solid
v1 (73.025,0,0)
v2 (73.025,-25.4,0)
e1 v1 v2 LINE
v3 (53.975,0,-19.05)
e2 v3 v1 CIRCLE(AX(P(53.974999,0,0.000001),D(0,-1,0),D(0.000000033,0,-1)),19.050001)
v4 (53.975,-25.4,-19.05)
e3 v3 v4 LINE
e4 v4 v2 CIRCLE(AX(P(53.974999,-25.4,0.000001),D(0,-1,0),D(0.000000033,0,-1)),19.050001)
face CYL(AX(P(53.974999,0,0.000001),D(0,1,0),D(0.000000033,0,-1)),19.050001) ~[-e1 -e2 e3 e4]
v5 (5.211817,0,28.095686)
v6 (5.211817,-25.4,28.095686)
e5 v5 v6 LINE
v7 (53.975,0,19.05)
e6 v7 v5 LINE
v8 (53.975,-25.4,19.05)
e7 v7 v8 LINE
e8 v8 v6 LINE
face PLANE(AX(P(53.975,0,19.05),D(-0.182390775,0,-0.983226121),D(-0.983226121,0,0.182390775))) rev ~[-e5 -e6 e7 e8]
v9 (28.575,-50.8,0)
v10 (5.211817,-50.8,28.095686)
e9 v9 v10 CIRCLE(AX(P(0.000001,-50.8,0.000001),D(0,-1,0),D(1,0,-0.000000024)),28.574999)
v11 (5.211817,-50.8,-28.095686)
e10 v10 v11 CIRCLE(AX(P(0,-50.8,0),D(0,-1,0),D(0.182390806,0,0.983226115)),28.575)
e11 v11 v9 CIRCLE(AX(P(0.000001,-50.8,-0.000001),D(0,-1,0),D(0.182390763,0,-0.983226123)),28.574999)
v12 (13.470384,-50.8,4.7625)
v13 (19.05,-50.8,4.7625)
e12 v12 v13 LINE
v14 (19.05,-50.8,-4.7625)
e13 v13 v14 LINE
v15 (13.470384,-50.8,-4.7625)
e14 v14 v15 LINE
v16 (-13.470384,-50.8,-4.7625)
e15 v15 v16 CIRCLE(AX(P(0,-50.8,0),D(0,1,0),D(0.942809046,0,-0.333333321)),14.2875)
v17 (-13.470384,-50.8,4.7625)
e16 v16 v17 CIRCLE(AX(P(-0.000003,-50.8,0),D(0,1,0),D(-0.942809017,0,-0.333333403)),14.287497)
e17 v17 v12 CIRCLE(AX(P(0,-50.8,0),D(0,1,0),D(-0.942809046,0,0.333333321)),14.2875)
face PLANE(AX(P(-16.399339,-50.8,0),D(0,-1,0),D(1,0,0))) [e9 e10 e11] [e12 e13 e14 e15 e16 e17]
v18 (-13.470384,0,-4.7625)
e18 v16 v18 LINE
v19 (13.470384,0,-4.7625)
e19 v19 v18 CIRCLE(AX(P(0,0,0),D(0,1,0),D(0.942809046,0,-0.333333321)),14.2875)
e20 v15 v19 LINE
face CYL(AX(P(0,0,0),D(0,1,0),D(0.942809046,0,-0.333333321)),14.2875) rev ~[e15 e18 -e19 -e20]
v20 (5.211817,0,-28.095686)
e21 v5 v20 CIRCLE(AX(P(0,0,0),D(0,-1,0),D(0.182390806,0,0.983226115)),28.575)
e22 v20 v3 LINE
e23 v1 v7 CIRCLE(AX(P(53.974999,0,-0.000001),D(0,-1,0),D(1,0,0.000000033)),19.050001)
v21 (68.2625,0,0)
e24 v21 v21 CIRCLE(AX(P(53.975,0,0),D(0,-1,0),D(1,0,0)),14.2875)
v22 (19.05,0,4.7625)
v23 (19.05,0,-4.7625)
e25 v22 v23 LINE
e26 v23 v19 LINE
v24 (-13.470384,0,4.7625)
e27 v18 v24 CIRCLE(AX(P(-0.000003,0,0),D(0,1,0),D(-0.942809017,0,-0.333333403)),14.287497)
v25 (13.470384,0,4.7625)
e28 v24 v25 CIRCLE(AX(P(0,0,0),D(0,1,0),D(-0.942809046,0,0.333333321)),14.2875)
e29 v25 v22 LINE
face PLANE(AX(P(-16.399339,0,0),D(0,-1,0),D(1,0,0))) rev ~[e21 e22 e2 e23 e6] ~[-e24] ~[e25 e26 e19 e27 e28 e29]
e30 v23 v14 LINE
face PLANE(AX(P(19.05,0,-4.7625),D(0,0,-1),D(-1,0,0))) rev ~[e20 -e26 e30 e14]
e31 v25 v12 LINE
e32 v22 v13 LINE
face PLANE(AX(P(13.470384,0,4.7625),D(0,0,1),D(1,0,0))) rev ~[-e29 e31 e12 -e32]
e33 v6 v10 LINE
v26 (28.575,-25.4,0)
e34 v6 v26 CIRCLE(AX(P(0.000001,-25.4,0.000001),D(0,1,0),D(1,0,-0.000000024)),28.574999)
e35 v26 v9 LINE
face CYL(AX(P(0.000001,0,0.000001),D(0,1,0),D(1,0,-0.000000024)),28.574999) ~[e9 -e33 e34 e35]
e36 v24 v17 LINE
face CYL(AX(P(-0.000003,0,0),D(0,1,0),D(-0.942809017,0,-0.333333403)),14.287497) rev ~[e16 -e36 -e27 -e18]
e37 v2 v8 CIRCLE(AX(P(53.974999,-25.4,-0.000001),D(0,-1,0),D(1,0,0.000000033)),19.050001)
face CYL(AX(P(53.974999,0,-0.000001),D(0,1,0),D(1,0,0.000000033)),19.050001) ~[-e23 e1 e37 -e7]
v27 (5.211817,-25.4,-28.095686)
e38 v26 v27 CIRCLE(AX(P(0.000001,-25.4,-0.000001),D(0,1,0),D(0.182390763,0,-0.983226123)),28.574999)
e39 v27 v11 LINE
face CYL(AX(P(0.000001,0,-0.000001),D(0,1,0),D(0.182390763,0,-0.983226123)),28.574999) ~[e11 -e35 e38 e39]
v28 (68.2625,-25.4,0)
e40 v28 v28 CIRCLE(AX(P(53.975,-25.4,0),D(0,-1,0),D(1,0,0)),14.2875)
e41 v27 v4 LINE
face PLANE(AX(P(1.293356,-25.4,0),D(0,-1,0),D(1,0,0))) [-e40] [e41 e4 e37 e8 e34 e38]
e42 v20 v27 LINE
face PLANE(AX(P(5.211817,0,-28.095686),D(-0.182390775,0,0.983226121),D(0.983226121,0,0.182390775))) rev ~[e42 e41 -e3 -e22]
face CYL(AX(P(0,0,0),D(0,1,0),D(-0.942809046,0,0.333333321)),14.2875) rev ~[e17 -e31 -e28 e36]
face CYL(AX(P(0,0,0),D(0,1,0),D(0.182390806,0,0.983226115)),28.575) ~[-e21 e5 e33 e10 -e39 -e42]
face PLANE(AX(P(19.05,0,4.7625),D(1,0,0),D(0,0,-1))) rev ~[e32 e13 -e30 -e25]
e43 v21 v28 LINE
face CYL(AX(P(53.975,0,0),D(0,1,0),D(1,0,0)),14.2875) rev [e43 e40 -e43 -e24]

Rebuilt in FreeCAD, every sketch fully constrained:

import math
import FreeCAD as App
import Part
import Sketcher
from FreeCAD import Vector
Q = App.Units.Quantity

doc = App.newDocument("Part")
body = doc.addObject("PartDesign::Body", "Body")

# Sketch on XZ plane
sketch1 = body.newObject("Sketcher::SketchObject", "Sketch")
sketch1.AttachmentSupport = (doc.getObject("XZ_Plane"), [""])
sketch1.MapMode = "FlatFace"
sketch1.addGeometry(Part.ArcOfCircle(Part.Circle(Vector(0, 0, 0), Vector(0, 0, 1), 29), math.radians(79), math.radians(281)), False)
sketch1.addGeometry(Part.LineSegment(Vector(5, -28, 0), Vector(54, -19, 0)), False)
sketch1.addGeometry(Part.ArcOfCircle(Part.Circle(Vector(54, 0, 0), Vector(0, 0, 1), 19), math.radians(-90), math.radians(0)), False)
sketch1.addGeometry(Part.ArcOfCircle(Part.Circle(Vector(54, 0, 0), Vector(0, 0, 1), 19), math.radians(0), math.radians(90)), False)
sketch1.addGeometry(Part.LineSegment(Vector(54, 19, 0), Vector(5, 28, 0)), False)
sketch1.addGeometry(Part.LineSegment(Vector(-19, 5, 0), Vector(-13, 5, 0)), False)
sketch1.addGeometry(Part.ArcOfCircle(Part.Circle(Vector(0, 0, 0), Vector(0, 0, 1), 14), math.radians(19), math.radians(161)), False)
sketch1.addGeometry(Part.LineSegment(Vector(13, 5, 0), Vector(19, 5, 0)), False)
sketch1.addGeometry(Part.LineSegment(Vector(19, 5, 0), Vector(19, -5, 0)), False)
sketch1.addGeometry(Part.LineSegment(Vector(19, -5, 0), Vector(13, -5, 0)), False)
sketch1.addGeometry(Part.ArcOfCircle(Part.Circle(Vector(0, 0, 0), Vector(0, 0, 1), 14), math.radians(-161), math.radians(-19)), False)
sketch1.addGeometry(Part.LineSegment(Vector(-13, -5, 0), Vector(-19, -5, 0)), False)
sketch1.addGeometry(Part.LineSegment(Vector(-19, -5, 0), Vector(-19, 5, 0)), False)
sketch1.addGeometry(Part.Circle(Vector(54, 0, 0), Vector(0, 0, 1), 14), False)
sketch1.addConstraint(Sketcher.Constraint("Tangent", 0, 2, 1, 1))
sketch1.addConstraint(Sketcher.Constraint("Coincident", 1, 2, 2, 1))
sketch1.addConstraint(Sketcher.Constraint("Tangent", 2, 2, 3, 1))
sketch1.addConstraint(Sketcher.Constraint("Coincident", 3, 2, 4, 1))
sketch1.addConstraint(Sketcher.Constraint("Tangent", 4, 2, 0, 1))
sketch1.addConstraint(Sketcher.Constraint("Coincident", 5, 2, 6, 2))
sketch1.addConstraint(Sketcher.Constraint("Coincident", 6, 1, 7, 1))
sketch1.addConstraint(Sketcher.Constraint("Coincident", 7, 2, 8, 1))
sketch1.addConstraint(Sketcher.Constraint("Coincident", 8, 2, 9, 1))
sketch1.addConstraint(Sketcher.Constraint("Coincident", 9, 2, 10, 2))
sketch1.addConstraint(Sketcher.Constraint("Coincident", 10, 1, 11, 1))
sketch1.addConstraint(Sketcher.Constraint("Coincident", 11, 2, 12, 1))
sketch1.addConstraint(Sketcher.Constraint("Coincident", 12, 2, 5, 1))
sketch1.addConstraint(Sketcher.Constraint("Horizontal", 5))
sketch1.addConstraint(Sketcher.Constraint("Horizontal", 7))
sketch1.addConstraint(Sketcher.Constraint("Vertical", 8))
sketch1.addConstraint(Sketcher.Constraint("Horizontal", 9))
sketch1.addConstraint(Sketcher.Constraint("Horizontal", 11))
sketch1.addConstraint(Sketcher.Constraint("Vertical", 12))
sketch1.addConstraint(Sketcher.Constraint("Coincident", 0, 3, -1, 1))
sketch1.addConstraint(Sketcher.Constraint("Coincident", 6, 3, -1, 1))
sketch1.addConstraint(Sketcher.Constraint("Coincident", 10, 3, -1, 1))
sketch1.addConstraint(Sketcher.Constraint("Coincident", 13, 3, 2, 3))
sketch1.addConstraint(Sketcher.Constraint("Equal", 2, 3))
sketch1.addConstraint(Sketcher.Constraint("Equal", 6, 10))
sketch1.addConstraint(Sketcher.Constraint("Equal", 10, 13))
sketch1.addConstraint(Sketcher.Constraint("Symmetric", 7, 2, 11, 2, -1, 1))
sketch1.addConstraint(Sketcher.Constraint("Symmetric", 1, 2, 3, 2, -1))
sketch1.addConstraint(Sketcher.Constraint("PointOnObject", 2, 2, -1))
sketch1.addConstraint(Sketcher.Constraint("Horizontal", 5, 2, 6, 1))
sketch1.addConstraint(Sketcher.Constraint("Horizontal", 9, 2, 10, 1))
sketch1.addConstraint(Sketcher.Constraint("Vertical", 13, 3, 1, 2))
sketch1.addConstraint(Sketcher.Constraint("Radius", 2, Q("0.75 in")))
sketch1.addConstraint(Sketcher.Constraint("Diameter", 13, Q("1.125 in")))
sketch1.addConstraint(Sketcher.Constraint("Radius", 0, Q("1.125 in")))
sketch1.addConstraint(Sketcher.Constraint("DistanceY", 8, 2, 8, 1, Q("0.375 in")))
sketch1.addConstraint(Sketcher.Constraint("DistanceX", -1, 1, 7, 2, Q("0.75 in")))
sketch1.addConstraint(Sketcher.Constraint("DistanceX", -1, 1, 2, 3, Q("2.125 in")))
pad1 = body.newObject("PartDesign::Pad", "Pad")
pad1.Profile = sketch1
pad1.Length = Q("1 in")

# Sketch on XZ plane
sketch2 = body.newObject("Sketcher::SketchObject", "Sketch001")
sketch2.AttachmentSupport = (doc.getObject("XZ_Plane"), [""])
sketch2.MapMode = "FlatFace"
sketch2.addGeometry(Part.ArcOfCircle(Part.Circle(Vector(0, 0, 0), Vector(0, 0, 1), 29), math.radians(-79), math.radians(0)), False)
sketch2.addGeometry(Part.ArcOfCircle(Part.Circle(Vector(0, 0, 0), Vector(0, 0, 1), 29), math.radians(0), math.radians(79)), False)
sketch2.addGeometry(Part.ArcOfCircle(Part.Circle(Vector(0, 0, 0), Vector(0, 0, 1), 29), math.radians(79), math.radians(281)), False)
sketch2.addGeometry(Part.LineSegment(Vector(-19, 5, 0), Vector(-13, 5, 0)), False)
sketch2.addGeometry(Part.ArcOfCircle(Part.Circle(Vector(0, 0, 0), Vector(0, 0, 1), 14), math.radians(19), math.radians(161)), False)
sketch2.addGeometry(Part.LineSegment(Vector(13, 5, 0), Vector(19, 5, 0)), False)
sketch2.addGeometry(Part.LineSegment(Vector(19, 5, 0), Vector(19, -5, 0)), False)
sketch2.addGeometry(Part.LineSegment(Vector(19, -5, 0), Vector(13, -5, 0)), False)
sketch2.addGeometry(Part.ArcOfCircle(Part.Circle(Vector(0, 0, 0), Vector(0, 0, 1), 14), math.radians(-161), math.radians(-19)), False)
sketch2.addGeometry(Part.LineSegment(Vector(-13, -5, 0), Vector(-19, -5, 0)), False)
sketch2.addGeometry(Part.LineSegment(Vector(-19, -5, 0), Vector(-19, 5, 0)), False)
sketch2.addConstraint(Sketcher.Constraint("Tangent", 0, 2, 1, 1))
sketch2.addConstraint(Sketcher.Constraint("Tangent", 1, 2, 2, 1))
sketch2.addConstraint(Sketcher.Constraint("Tangent", 2, 2, 0, 1))
sketch2.addConstraint(Sketcher.Constraint("Coincident", 3, 2, 4, 2))
sketch2.addConstraint(Sketcher.Constraint("Coincident", 4, 1, 5, 1))
sketch2.addConstraint(Sketcher.Constraint("Coincident", 5, 2, 6, 1))
sketch2.addConstraint(Sketcher.Constraint("Coincident", 6, 2, 7, 1))
sketch2.addConstraint(Sketcher.Constraint("Coincident", 7, 2, 8, 2))
sketch2.addConstraint(Sketcher.Constraint("Coincident", 8, 1, 9, 1))
sketch2.addConstraint(Sketcher.Constraint("Coincident", 9, 2, 10, 1))
sketch2.addConstraint(Sketcher.Constraint("Coincident", 10, 2, 3, 1))
sketch2.addConstraint(Sketcher.Constraint("Horizontal", 3))
sketch2.addConstraint(Sketcher.Constraint("Horizontal", 5))
sketch2.addConstraint(Sketcher.Constraint("Vertical", 6))
sketch2.addConstraint(Sketcher.Constraint("Horizontal", 7))
sketch2.addConstraint(Sketcher.Constraint("Horizontal", 9))
sketch2.addConstraint(Sketcher.Constraint("Vertical", 10))
sketch2.addConstraint(Sketcher.Constraint("Coincident", 0, 3, -1, 1))
sketch2.addConstraint(Sketcher.Constraint("Coincident", 4, 3, -1, 1))
sketch2.addConstraint(Sketcher.Constraint("Coincident", 8, 3, -1, 1))
sketch2.addConstraint(Sketcher.Constraint("Equal", 4, 8))
sketch2.addConstraint(Sketcher.Constraint("Symmetric", 5, 2, 9, 2, -1, 1))
sketch2.addConstraint(Sketcher.Constraint("PointOnObject", 0, 2, -1))
sketch2.addConstraint(Sketcher.Constraint("Horizontal", 3, 2, 4, 1))
sketch2.addConstraint(Sketcher.Constraint("Horizontal", 7, 2, 8, 1))
sketch2.addConstraint(Sketcher.Constraint("Vertical", 1, 2, 2, 2))
sketch2.addConstraint(Sketcher.Constraint("Radius", 0, Q("1.125 in")))
sketch2.addConstraint(Sketcher.Constraint("Radius", 4, Q("0.5625 in")))
sketch2.addConstraint(Sketcher.Constraint("DistanceY", 6, 2, 6, 1, Q("0.375 in")))
sketch2.addConstraint(Sketcher.Constraint("DistanceX", -1, 1, 5, 2, Q("0.75 in")))
sketch2.addConstraint(Sketcher.Constraint("DistanceX", -1, 1, 1, 2, 5.211817))
pad2 = body.newObject("PartDesign::Pad", "Pad001")
pad2.Profile = sketch2
pad2.Length = Q("2 in")

# Sketch on XZ plane
sketch3 = body.newObject("Sketcher::SketchObject", "Sketch002")
sketch3.AttachmentSupport = (doc.getObject("XZ_Plane"), [""])
sketch3.MapMode = "FlatFace"
sketch3.addGeometry(Part.ArcOfCircle(Part.Circle(Vector(0, 0, 0), Vector(0, 0, 1), 14), math.radians(161), math.radians(199)), False)
sketch3.addGeometry(Part.LineSegment(Vector(-13, 5, 0), Vector(-19, 5, 0)), False)
sketch3.addGeometry(Part.LineSegment(Vector(-19, 5, 0), Vector(-19, -5, 0)), False)
sketch3.addGeometry(Part.LineSegment(Vector(-19, -5, 0), Vector(-13, -5, 0)), False)
sketch3.addConstraint(Sketcher.Constraint("Coincident", 0, 1, 1, 1))
sketch3.addConstraint(Sketcher.Constraint("Coincident", 1, 2, 2, 1))
sketch3.addConstraint(Sketcher.Constraint("Coincident", 2, 2, 3, 1))
sketch3.addConstraint(Sketcher.Constraint("Coincident", 3, 2, 0, 2))
sketch3.addConstraint(Sketcher.Constraint("Horizontal", 1))
sketch3.addConstraint(Sketcher.Constraint("Vertical", 2))
sketch3.addConstraint(Sketcher.Constraint("Horizontal", 3))
sketch3.addConstraint(Sketcher.Constraint("Coincident", 0, 3, -1, 1))
sketch3.addConstraint(Sketcher.Constraint("Vertical", 0, 1, 3, 2))
sketch3.addConstraint(Sketcher.Constraint("Radius", 0, Q("0.5624999 in")))
sketch3.addConstraint(Sketcher.Constraint("DistanceY", 2, 2, 2, 1, Q("0.375 in")))
sketch3.addConstraint(Sketcher.Constraint("DistanceX", 1, 2, -1, 1, Q("0.75 in")))
pad3 = body.newObject("PartDesign::Pad", "Pad002")
pad3.Profile = sketch3
pad3.Length = Q("2 in")

doc.recompute()
